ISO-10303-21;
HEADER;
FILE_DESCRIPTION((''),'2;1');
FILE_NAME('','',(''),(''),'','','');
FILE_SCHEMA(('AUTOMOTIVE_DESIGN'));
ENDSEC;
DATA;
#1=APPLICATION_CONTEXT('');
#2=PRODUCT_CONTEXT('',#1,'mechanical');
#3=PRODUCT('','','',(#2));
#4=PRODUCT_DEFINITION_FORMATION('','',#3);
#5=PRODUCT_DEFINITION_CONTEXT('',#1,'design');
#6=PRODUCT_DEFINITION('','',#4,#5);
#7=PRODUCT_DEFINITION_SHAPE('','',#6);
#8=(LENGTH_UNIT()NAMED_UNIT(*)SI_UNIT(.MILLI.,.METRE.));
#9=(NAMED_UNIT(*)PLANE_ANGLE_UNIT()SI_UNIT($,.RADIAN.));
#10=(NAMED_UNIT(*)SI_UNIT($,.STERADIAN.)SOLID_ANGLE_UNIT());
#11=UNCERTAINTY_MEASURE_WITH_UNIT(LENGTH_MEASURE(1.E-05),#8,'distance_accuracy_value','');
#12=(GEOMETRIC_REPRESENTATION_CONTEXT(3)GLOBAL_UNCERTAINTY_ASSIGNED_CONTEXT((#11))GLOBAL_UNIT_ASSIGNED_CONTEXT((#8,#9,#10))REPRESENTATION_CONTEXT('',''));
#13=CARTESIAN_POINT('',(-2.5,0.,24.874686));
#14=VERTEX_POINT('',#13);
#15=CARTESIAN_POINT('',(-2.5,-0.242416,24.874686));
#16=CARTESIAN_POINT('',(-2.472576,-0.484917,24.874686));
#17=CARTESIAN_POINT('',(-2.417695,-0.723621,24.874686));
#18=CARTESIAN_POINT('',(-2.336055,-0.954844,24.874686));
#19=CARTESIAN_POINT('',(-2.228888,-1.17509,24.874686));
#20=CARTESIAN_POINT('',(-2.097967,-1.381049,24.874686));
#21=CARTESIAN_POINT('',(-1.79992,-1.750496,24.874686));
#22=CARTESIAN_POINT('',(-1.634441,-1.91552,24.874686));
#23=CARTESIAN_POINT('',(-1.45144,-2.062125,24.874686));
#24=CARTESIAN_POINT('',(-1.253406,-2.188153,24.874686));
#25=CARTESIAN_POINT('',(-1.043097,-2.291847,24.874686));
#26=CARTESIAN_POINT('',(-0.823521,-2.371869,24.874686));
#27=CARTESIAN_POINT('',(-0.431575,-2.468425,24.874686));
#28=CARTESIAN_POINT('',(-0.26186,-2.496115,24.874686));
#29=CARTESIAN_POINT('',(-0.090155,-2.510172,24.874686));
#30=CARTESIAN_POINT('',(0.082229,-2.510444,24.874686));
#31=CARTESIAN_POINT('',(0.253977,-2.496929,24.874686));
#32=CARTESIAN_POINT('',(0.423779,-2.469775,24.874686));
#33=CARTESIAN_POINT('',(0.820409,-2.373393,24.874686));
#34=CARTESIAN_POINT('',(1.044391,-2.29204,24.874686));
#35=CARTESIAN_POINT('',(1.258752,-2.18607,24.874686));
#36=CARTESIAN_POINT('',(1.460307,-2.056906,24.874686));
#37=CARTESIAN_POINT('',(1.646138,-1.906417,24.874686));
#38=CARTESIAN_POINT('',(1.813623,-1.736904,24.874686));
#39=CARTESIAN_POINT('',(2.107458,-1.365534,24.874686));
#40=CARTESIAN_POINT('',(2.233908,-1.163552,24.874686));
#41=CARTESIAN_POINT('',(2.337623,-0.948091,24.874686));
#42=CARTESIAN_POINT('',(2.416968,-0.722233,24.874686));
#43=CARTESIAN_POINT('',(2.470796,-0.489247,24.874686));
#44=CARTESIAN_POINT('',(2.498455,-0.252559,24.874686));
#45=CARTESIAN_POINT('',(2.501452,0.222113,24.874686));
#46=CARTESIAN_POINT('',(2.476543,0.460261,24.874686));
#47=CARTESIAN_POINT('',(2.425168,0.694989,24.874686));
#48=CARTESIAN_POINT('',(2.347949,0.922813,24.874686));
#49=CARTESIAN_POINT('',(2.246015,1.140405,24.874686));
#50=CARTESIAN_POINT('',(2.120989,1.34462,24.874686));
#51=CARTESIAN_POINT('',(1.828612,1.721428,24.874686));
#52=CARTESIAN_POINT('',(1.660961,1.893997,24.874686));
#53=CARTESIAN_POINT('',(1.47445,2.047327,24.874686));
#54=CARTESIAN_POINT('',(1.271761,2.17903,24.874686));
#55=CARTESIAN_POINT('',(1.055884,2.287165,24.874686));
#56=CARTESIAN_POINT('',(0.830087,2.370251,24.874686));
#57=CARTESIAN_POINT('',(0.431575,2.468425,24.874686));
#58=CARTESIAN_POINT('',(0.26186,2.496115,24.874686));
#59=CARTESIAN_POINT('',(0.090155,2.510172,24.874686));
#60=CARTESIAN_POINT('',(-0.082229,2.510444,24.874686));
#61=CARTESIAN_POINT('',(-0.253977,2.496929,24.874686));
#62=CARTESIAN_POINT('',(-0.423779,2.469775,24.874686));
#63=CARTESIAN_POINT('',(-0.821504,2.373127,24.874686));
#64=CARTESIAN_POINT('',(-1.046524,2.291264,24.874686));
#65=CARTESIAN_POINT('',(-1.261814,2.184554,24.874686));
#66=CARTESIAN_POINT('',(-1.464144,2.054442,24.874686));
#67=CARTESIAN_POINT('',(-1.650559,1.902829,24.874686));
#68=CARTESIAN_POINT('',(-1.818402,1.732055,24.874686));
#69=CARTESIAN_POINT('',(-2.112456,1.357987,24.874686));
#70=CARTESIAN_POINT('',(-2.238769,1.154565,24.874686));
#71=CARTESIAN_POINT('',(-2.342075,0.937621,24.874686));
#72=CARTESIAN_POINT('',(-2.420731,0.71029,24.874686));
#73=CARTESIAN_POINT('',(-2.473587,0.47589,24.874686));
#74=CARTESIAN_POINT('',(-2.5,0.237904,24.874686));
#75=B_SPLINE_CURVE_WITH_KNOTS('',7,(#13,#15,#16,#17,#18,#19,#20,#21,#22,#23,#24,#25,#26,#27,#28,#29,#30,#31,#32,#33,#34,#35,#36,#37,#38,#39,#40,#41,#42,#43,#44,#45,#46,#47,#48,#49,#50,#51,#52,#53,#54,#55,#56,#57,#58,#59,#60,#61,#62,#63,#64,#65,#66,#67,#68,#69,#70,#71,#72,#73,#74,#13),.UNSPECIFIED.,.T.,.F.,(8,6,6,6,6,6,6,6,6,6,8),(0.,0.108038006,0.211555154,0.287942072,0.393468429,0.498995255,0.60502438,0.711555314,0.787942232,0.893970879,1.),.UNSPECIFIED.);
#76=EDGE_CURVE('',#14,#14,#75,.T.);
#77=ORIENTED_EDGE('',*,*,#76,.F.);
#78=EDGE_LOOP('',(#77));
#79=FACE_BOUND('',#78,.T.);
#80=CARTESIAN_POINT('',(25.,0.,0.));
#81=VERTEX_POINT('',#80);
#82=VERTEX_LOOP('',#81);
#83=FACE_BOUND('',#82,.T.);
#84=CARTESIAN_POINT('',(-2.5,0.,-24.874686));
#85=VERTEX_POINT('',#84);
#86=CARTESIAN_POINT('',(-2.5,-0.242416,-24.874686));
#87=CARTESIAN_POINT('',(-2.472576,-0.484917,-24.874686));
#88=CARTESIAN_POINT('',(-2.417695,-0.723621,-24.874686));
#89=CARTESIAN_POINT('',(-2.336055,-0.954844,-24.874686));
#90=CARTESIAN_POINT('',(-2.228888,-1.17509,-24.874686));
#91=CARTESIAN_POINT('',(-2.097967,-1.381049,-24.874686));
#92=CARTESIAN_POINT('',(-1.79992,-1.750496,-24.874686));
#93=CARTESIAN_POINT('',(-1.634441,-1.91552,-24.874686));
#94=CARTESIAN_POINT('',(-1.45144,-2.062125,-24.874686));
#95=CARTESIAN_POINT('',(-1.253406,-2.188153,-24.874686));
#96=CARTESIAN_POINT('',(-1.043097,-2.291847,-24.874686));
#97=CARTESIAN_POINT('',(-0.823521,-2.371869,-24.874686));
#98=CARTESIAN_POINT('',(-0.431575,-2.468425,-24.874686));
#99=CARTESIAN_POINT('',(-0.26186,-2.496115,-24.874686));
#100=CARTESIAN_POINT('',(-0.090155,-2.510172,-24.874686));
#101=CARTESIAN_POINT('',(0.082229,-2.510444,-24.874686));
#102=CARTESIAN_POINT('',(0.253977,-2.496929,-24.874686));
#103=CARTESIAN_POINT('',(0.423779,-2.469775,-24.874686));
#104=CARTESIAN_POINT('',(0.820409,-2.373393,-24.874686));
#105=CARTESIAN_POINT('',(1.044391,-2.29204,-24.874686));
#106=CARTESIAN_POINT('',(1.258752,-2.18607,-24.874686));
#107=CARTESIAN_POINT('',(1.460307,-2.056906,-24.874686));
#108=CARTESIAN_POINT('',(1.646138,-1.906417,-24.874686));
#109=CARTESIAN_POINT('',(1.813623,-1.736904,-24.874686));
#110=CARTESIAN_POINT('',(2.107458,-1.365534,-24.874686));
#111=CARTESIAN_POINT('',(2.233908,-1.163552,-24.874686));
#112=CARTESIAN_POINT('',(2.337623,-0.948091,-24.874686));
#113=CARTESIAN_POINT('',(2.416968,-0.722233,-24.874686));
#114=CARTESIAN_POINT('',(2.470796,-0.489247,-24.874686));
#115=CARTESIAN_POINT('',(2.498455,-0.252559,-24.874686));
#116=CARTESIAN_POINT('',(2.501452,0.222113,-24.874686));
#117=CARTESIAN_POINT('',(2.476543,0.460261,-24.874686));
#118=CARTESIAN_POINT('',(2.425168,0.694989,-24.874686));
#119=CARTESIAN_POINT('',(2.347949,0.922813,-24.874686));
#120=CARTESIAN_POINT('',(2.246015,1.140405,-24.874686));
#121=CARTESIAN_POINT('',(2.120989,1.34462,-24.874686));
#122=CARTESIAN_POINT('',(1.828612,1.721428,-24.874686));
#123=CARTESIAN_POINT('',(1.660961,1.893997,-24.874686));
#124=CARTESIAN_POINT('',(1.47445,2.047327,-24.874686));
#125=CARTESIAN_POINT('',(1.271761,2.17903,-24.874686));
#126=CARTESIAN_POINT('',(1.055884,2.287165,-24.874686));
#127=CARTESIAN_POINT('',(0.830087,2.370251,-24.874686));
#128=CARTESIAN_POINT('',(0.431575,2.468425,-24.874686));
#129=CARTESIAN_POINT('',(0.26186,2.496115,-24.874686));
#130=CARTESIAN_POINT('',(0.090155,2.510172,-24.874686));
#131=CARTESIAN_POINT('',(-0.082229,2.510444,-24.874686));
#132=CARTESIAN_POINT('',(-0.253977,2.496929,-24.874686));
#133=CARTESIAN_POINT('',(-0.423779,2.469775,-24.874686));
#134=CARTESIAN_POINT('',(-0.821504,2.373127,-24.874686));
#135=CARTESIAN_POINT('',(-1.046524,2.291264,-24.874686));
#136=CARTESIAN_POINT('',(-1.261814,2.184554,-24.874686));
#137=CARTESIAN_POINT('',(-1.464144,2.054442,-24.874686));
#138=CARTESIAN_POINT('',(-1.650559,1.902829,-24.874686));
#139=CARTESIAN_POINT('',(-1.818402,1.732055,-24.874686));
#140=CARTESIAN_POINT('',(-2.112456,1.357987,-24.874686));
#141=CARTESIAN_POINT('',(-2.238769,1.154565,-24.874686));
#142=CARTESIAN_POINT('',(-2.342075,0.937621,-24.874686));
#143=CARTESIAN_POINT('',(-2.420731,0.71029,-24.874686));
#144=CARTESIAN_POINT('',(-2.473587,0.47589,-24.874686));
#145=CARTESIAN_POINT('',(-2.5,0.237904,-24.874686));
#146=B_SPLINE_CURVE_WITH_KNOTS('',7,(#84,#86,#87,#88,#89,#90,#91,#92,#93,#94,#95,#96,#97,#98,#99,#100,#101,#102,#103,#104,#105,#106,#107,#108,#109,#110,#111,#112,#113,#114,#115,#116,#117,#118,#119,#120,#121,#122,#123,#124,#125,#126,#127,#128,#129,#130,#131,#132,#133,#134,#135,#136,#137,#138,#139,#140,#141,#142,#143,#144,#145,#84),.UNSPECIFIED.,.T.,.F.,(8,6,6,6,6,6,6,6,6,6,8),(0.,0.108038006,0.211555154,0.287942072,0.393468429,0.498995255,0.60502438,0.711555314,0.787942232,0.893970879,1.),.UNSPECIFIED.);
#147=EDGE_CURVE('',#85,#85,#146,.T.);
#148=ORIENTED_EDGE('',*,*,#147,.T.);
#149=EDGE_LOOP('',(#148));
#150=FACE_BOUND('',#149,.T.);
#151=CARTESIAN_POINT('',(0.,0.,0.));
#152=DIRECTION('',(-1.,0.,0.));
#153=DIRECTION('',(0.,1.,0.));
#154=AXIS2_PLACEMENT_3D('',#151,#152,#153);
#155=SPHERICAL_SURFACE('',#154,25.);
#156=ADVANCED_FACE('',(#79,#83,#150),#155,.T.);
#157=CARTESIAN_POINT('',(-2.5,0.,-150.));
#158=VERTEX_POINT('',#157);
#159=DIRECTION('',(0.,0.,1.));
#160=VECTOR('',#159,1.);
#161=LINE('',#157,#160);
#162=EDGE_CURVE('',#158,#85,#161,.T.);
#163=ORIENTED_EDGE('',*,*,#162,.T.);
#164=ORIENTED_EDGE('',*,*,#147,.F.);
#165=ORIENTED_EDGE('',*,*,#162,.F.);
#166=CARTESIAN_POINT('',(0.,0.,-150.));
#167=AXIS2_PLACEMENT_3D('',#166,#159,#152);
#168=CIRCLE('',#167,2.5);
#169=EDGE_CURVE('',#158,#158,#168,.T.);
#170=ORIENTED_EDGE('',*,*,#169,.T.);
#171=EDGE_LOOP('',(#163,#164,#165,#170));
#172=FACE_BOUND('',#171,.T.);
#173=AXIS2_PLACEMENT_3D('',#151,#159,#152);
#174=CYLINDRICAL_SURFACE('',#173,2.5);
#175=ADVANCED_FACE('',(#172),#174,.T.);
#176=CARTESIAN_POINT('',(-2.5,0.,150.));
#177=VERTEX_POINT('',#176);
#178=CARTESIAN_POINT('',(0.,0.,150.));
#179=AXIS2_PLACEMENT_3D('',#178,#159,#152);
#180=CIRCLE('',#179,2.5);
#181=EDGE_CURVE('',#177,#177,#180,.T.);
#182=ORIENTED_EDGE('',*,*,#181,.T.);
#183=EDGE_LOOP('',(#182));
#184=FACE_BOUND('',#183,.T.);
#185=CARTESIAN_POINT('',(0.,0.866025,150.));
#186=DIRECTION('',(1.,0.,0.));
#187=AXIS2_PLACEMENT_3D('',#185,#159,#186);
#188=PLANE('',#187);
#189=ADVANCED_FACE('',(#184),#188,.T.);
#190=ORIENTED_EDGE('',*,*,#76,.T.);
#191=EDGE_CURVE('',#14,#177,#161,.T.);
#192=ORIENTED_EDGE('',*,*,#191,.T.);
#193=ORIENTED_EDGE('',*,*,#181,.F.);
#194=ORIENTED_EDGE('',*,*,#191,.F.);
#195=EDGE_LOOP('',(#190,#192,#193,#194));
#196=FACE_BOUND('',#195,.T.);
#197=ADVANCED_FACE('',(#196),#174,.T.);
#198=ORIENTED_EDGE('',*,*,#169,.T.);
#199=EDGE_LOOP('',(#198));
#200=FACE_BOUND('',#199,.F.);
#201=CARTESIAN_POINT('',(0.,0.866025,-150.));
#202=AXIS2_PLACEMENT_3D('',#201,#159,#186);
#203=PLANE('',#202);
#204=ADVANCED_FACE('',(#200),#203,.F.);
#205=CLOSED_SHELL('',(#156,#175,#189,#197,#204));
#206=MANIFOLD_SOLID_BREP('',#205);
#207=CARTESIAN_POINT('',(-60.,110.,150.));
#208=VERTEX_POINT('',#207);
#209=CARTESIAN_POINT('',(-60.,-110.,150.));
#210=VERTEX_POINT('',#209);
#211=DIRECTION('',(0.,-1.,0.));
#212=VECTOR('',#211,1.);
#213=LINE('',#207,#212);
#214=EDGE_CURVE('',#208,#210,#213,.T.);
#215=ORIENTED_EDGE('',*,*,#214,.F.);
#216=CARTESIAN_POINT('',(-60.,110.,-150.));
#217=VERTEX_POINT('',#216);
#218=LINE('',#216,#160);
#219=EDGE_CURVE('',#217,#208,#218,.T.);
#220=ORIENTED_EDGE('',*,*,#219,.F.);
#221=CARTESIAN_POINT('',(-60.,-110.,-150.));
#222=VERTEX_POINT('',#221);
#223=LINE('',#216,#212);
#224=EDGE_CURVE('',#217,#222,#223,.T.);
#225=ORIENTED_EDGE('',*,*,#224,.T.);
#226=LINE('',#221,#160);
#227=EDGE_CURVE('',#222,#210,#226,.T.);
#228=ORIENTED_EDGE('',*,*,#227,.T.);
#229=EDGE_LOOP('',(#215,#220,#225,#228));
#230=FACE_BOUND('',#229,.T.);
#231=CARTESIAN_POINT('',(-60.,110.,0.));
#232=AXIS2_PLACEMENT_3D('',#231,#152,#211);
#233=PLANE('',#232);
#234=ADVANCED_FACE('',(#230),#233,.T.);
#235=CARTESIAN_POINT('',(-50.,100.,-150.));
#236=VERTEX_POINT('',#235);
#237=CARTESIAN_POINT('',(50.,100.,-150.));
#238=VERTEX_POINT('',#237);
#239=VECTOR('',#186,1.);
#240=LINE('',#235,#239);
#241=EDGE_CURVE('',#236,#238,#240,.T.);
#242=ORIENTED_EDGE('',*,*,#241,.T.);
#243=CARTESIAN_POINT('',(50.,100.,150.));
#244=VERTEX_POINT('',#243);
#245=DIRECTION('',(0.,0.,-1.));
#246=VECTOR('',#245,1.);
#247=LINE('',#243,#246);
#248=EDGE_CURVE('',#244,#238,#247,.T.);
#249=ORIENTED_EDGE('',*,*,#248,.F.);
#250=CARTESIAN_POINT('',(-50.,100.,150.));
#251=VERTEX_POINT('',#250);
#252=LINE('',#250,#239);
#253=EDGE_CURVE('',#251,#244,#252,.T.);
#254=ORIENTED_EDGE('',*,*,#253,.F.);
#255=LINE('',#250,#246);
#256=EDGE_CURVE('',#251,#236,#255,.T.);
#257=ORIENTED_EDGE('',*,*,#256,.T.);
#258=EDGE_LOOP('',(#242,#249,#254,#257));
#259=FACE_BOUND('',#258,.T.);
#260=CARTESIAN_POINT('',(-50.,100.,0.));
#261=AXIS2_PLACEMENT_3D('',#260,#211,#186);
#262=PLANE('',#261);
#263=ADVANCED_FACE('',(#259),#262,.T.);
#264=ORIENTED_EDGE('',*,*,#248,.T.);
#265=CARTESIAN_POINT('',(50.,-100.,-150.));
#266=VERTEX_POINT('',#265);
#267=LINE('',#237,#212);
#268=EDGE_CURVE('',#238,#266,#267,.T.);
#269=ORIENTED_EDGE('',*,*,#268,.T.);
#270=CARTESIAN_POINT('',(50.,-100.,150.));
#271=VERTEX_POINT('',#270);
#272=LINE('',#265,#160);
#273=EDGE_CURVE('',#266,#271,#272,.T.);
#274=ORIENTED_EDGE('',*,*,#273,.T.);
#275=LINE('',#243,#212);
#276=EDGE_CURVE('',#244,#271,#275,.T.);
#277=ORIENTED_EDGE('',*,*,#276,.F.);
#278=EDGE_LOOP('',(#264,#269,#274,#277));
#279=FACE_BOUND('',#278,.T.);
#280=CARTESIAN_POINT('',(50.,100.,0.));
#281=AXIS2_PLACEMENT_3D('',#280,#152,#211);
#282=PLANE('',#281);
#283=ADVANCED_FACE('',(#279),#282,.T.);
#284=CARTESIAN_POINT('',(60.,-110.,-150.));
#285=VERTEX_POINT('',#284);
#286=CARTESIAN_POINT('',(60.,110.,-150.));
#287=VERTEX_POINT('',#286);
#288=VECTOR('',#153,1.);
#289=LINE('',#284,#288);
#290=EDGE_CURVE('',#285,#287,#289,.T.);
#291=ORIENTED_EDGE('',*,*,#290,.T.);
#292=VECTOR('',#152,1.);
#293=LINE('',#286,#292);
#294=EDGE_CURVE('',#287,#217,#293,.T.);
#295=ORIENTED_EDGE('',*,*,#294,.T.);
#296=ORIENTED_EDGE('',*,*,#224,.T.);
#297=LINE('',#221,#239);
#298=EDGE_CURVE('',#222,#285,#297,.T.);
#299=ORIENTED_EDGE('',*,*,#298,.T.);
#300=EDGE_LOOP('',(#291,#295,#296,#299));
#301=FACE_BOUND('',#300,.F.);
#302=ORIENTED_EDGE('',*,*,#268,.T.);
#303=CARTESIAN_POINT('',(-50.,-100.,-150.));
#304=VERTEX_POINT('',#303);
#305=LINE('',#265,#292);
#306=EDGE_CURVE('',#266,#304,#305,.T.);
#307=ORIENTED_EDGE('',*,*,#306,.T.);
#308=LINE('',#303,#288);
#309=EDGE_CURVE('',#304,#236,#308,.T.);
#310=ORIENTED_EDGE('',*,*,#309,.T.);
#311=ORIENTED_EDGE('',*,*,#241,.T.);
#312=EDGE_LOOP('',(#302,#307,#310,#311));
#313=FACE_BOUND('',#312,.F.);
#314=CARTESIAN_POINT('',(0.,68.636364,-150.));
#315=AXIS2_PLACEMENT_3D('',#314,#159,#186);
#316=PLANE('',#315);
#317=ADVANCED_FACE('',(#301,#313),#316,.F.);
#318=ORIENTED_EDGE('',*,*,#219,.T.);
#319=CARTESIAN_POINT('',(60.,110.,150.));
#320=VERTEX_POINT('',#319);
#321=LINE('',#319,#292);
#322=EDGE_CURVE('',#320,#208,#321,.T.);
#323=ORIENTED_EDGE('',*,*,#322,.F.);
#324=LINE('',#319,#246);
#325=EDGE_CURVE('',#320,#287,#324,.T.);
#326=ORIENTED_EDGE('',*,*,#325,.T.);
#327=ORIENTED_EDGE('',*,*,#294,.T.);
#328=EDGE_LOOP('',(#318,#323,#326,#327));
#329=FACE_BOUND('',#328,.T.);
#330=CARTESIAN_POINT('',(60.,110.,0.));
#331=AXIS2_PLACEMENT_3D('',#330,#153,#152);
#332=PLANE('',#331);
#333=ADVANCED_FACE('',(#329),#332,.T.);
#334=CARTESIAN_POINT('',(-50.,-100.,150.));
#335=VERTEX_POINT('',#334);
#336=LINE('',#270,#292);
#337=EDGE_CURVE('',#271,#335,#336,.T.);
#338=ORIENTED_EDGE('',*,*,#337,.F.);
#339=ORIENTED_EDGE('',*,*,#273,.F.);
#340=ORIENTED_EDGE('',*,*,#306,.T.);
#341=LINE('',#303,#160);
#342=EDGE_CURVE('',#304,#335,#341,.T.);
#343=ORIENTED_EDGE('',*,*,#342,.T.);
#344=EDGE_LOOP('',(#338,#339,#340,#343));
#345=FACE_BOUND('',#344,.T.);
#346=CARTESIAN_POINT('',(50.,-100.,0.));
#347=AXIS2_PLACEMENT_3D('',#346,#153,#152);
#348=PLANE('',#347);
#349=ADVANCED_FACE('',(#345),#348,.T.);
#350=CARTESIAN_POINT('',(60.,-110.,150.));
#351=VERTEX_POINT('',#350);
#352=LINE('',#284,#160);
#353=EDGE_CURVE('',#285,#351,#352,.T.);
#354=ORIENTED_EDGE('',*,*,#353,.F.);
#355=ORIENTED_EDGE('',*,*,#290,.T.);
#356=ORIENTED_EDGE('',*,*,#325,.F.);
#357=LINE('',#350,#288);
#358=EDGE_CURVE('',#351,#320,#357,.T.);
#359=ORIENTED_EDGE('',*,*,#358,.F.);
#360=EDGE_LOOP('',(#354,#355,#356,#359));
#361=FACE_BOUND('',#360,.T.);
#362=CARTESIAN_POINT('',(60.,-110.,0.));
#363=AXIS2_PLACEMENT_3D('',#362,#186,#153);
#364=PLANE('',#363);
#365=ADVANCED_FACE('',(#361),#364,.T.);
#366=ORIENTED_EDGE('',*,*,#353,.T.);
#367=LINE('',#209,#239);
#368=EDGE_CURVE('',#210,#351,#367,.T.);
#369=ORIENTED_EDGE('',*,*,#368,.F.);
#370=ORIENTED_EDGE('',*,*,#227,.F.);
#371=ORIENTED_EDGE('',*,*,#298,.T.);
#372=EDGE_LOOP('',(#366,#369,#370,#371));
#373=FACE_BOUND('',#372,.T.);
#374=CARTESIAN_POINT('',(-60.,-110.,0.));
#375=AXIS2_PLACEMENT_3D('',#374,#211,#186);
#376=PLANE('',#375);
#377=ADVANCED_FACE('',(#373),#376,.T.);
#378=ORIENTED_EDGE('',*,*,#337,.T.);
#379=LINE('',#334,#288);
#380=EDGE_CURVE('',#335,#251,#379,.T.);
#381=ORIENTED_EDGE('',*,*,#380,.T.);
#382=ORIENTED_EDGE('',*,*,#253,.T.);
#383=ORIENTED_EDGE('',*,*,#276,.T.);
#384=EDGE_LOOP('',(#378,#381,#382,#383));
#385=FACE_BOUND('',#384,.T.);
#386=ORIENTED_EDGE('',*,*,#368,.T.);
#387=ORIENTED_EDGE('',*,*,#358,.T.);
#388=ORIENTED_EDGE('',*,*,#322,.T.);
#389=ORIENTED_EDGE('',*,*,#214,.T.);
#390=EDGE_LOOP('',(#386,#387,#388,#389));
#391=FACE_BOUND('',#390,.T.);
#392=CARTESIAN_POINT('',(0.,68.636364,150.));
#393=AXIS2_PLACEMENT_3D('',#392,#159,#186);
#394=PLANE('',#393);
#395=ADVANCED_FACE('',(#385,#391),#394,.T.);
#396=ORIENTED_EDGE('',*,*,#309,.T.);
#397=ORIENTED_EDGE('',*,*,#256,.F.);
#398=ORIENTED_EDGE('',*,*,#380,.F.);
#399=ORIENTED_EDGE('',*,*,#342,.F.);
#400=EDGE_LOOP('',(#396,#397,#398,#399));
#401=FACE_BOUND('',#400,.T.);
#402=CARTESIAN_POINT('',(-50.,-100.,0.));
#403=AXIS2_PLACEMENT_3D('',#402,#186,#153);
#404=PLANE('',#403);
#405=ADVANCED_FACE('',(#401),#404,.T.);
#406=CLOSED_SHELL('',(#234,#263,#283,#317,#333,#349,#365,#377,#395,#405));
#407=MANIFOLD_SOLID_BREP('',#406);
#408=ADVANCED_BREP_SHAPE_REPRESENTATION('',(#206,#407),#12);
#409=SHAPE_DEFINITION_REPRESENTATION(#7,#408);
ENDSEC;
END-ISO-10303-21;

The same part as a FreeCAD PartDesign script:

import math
import FreeCAD as App
import Part
import Sketcher

doc = App.newDocument("Part")
params = doc.addObject("Spreadsheet::Sheet", "Params")
for row, (alias, value) in enumerate([
    ("sketch1_diameter", "5 mm"),
    ("sketch1_width", "120 mm"),
    ("sketch1_width2", "100 mm"),
    ("sketch1_height", "220 mm"),
    ("sketch1_height2", "200 mm"),
    ("pad1_length", "150 mm"),
    ("pad1_length2", "150 mm"),
    ("sketch2_radius", "25 mm"),
    ("sketch2_radius2", "2.5 mm"),
    ("revolution_angle", "360 deg"),
], start=1):
    params.set(f"A{row}", alias)
    params.set(f"B{row}", "=" + value)
    params.setAlias(f"B{row}", alias)

body = doc.addObject("PartDesign::Body", "Body")
body.AllowCompound = True

# Sketch on XY plane
sketch1 = doc.addObject("Sketcher::SketchObject", "Sketch")
body.addObject(sketch1)
sketch1.AttachmentSupport = (doc.XY_Plane, [""])
sketch1.MapMode = "FlatFace"
sketch1.addGeometry([
    Part.Circle(App.Vector(0, 0, 0), App.Vector(0, 0, 1), 2.5),  # 0
    Part.LineSegment(App.Vector(60, 110, 0), App.Vector(-60, 110, 0)),  # 1
    Part.LineSegment(App.Vector(-60, 110, 0), App.Vector(-60, -110, 0)),  # 2
    Part.LineSegment(App.Vector(-60, -110, 0), App.Vector(60, -110, 0)),  # 3
    Part.LineSegment(App.Vector(60, -110, 0), App.Vector(60, 110, 0)),  # 4
    Part.LineSegment(App.Vector(50, 100, 0), App.Vector(50, -100, 0)),  # 5
    Part.LineSegment(App.Vector(50, -100, 0), App.Vector(-50, -100, 0)),  # 6
    Part.LineSegment(App.Vector(-50, -100, 0), App.Vector(-50, 100, 0)),  # 7
    Part.LineSegment(App.Vector(-50, 100, 0), App.Vector(50, 100, 0)),  # 8
], False)
sketch1.addConstraint([
    Sketcher.Constraint("Coincident", 1, 2, 2, 1),
    Sketcher.Constraint("Coincident", 2, 2, 3, 1),
    Sketcher.Constraint("Coincident", 3, 2, 4, 1),
    Sketcher.Constraint("Coincident", 4, 2, 1, 1),
    Sketcher.Constraint("Coincident", 5, 2, 6, 1),
    Sketcher.Constraint("Coincident", 6, 2, 7, 1),
    Sketcher.Constraint("Coincident", 7, 2, 8, 1),
    Sketcher.Constraint("Coincident", 8, 2, 5, 1),
    Sketcher.Constraint("Horizontal", 1),
    Sketcher.Constraint("Vertical", 2),
    Sketcher.Constraint("Horizontal", 3),
    Sketcher.Constraint("Vertical", 4),
    Sketcher.Constraint("Vertical", 5),
    Sketcher.Constraint("Horizontal", 6),
    Sketcher.Constraint("Vertical", 7),
    Sketcher.Constraint("Horizontal", 8),
    Sketcher.Constraint("Coincident", 0, 3, -1, 1),
    Sketcher.Constraint("Symmetric", 1, 2, 3, 2, -1, 1),
    Sketcher.Constraint("Symmetric", 5, 2, 7, 2, -1, 1),
    Sketcher.Constraint("Diameter", 0, 5.0),
    Sketcher.Constraint("DistanceX", 1, 2, 1, 1, 120.0),
    Sketcher.Constraint("DistanceX", 6, 2, 6, 1, 100.0),
    Sketcher.Constraint("DistanceY", 2, 2, 2, 1, 220.0),
    Sketcher.Constraint("DistanceY", 5, 2, 5, 1, 200.0),
])
sketch1.setExpression("Constraints[19]", "Params.sketch1_diameter")
sketch1.setExpression("Constraints[20]", "Params.sketch1_width")
sketch1.setExpression("Constraints[21]", "Params.sketch1_width2")
sketch1.setExpression("Constraints[22]", "Params.sketch1_height")
sketch1.setExpression("Constraints[23]", "Params.sketch1_height2")
pad1 = doc.addObject("PartDesign::Pad", "Pad")
body.addObject(pad1)
pad1.Profile = sketch1
pad1.Type = "TwoLengths"
pad1.setExpression("Length", "Params.pad1_length")
pad1.setExpression("Length2", "Params.pad1_length2")

# Sketch on XY plane
sketch2 = doc.addObject("Sketcher::SketchObject", "Sketch001")
body.addObject(sketch2)
sketch2.AttachmentSupport = (doc.XY_Plane, [""])
sketch2.MapMode = "FlatFace"
sketch2.addGeometry([
    Part.LineSegment(App.Vector(2.5, 0, 0), App.Vector(25, 0, 0)),
    Part.ArcOfCircle(Part.Circle(App.Vector(0, 0, 0), App.Vector(0, 0, 1), 25), math.radians(0), math.radians(180)),
    Part.LineSegment(App.Vector(-25, 0, 0), App.Vector(-2.5, 0, 0)),
    Part.ArcOfCircle(Part.Circle(App.Vector(0, 0, 0), App.Vector(0, 0, 1), 2.5), math.radians(0), math.radians(180)),
], False)
sketch2.addConstraint([
    Sketcher.Constraint("Coincident", 0, 2, 1, 1),
    Sketcher.Constraint("Coincident", 1, 2, 2, 1),
    Sketcher.Constraint("Coincident", 2, 2, 3, 2),
    Sketcher.Constraint("Coincident", 3, 1, 0, 1),
    Sketcher.Constraint("Horizontal", 0),
    Sketcher.Constraint("Horizontal", 2),
    Sketcher.Constraint("Coincident", 1, 3, -1, 1),
    Sketcher.Constraint("Coincident", 3, 3, -1, 1),
    Sketcher.Constraint("PointOnObject", 0, 2, -1),
    Sketcher.Constraint("PointOnObject", 1, 2, -1),
    Sketcher.Constraint("Radius", 1, 25.0),
    Sketcher.Constraint("Radius", 3, 2.5),
])
sketch2.setExpression("Constraints[10]", "Params.sketch2_radius")
sketch2.setExpression("Constraints[11]", "Params.sketch2_radius2")
revolution = doc.addObject("PartDesign::Revolution", "Revolution")
body.addObject(revolution)
revolution.Profile = sketch2
revolution.ReferenceAxis = (sketch2, ["H_Axis"])
revolution.setExpression("Angle", "Params.revolution_angle")

doc.recompute()
